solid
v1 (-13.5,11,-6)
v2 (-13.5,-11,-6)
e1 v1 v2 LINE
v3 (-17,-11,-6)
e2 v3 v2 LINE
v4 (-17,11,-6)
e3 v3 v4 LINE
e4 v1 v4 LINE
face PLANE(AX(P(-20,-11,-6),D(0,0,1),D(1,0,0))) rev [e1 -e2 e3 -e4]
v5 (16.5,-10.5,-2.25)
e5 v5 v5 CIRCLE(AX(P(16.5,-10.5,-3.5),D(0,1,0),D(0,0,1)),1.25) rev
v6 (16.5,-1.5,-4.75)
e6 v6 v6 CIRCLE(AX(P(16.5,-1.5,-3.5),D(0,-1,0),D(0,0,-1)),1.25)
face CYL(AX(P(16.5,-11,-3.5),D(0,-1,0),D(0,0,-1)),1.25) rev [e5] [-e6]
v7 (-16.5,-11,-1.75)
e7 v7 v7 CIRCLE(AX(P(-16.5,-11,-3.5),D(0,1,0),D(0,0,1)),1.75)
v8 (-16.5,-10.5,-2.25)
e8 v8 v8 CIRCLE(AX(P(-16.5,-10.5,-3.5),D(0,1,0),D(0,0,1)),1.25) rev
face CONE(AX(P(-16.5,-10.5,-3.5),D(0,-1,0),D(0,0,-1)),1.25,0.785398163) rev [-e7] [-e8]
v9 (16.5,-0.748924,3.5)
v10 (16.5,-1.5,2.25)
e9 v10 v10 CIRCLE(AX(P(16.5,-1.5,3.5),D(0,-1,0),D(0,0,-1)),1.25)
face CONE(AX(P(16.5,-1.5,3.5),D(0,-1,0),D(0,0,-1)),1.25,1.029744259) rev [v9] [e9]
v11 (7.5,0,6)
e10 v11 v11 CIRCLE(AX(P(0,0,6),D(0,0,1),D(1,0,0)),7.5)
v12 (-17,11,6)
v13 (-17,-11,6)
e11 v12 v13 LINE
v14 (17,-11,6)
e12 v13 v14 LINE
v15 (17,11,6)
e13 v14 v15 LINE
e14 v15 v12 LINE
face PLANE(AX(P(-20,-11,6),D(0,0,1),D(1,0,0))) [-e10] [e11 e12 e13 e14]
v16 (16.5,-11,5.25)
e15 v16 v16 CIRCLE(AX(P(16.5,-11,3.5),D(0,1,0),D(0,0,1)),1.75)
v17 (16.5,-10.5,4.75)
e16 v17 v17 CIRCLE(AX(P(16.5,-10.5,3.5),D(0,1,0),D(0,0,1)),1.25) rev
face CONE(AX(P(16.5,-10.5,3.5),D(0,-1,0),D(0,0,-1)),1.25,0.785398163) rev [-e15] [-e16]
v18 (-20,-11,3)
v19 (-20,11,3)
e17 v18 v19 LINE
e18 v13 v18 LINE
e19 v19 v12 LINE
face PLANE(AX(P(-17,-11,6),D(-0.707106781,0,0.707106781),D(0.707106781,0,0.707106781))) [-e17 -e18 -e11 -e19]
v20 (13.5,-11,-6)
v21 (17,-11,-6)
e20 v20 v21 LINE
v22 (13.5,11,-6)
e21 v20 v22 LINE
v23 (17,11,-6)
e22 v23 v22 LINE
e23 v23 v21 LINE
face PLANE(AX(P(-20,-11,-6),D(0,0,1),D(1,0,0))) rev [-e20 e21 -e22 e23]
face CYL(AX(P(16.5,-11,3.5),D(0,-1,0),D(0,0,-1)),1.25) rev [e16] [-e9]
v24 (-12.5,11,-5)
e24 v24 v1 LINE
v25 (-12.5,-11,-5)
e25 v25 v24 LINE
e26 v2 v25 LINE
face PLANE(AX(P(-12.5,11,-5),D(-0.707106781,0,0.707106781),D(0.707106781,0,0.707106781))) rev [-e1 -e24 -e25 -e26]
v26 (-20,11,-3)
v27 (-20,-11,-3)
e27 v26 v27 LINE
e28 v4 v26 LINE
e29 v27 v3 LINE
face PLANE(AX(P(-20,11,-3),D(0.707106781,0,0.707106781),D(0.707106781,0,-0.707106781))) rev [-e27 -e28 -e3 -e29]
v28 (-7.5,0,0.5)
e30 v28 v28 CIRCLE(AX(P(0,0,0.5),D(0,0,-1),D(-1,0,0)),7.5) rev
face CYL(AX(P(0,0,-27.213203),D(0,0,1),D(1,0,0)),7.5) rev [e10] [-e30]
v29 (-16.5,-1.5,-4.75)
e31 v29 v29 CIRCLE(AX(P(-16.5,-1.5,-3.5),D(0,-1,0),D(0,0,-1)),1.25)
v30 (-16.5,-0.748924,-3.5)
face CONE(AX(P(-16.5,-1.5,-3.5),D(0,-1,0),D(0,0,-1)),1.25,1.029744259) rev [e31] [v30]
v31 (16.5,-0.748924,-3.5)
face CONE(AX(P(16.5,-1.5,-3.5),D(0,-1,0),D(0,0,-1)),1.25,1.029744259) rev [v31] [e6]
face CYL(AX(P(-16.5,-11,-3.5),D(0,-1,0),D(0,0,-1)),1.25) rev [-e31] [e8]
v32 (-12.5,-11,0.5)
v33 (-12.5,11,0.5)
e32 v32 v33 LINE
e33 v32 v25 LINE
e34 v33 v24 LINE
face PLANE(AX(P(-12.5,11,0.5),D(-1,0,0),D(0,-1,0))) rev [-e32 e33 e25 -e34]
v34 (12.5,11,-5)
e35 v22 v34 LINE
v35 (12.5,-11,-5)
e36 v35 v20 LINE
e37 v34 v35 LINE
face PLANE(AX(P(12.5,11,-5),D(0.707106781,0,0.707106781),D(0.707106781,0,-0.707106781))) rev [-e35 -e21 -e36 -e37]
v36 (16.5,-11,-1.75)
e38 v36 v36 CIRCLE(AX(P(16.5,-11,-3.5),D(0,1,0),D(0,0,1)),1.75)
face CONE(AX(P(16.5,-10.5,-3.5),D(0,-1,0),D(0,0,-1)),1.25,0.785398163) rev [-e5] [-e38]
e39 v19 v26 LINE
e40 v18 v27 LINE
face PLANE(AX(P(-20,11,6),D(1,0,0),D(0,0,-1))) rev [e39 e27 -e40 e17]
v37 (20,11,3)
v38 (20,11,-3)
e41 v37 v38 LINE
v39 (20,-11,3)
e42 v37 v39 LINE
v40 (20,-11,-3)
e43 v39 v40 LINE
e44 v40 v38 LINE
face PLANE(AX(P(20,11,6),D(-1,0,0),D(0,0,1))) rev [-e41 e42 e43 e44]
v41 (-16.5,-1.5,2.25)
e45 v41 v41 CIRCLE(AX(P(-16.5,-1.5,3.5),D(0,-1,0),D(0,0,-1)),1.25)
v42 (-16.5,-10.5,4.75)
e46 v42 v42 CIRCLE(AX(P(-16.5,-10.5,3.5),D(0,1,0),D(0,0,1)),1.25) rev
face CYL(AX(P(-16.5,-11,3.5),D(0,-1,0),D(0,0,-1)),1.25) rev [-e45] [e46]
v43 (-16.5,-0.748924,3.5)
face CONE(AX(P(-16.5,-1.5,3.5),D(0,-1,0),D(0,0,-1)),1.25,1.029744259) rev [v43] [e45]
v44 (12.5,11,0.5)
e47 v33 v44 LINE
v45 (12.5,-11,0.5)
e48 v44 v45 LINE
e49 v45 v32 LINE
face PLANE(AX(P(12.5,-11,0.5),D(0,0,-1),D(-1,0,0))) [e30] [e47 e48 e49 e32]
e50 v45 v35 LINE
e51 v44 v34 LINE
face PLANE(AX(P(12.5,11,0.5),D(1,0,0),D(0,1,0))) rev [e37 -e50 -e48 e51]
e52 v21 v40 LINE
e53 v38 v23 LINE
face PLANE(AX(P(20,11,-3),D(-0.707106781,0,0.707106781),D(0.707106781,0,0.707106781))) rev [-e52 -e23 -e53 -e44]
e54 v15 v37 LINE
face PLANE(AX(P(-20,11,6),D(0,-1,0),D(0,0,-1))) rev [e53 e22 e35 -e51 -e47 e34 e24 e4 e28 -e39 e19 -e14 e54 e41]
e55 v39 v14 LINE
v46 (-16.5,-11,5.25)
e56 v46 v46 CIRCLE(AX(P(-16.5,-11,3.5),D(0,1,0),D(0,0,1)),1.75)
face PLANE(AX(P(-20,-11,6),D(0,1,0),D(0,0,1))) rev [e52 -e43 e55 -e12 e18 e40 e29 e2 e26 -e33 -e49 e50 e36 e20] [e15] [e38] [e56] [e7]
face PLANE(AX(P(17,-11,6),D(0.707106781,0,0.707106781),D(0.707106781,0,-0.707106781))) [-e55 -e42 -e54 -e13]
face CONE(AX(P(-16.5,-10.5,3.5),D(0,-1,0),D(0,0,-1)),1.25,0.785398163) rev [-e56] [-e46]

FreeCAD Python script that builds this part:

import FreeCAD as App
import Part
import Sketcher

V = App.Vector
Q = App.Units.Quantity


def edges_at(feature, points):
    """Names of the edges that pass closest to the given points."""
    edges = feature.Shape.Edges
    near = lambda p: min(range(len(edges)), key=lambda i: edges[i].distToShape(Part.Vertex(*p))[0])
    return sorted({f"Edge{near(p) + 1}" for p in points})

doc = App.newDocument("Part")
params = doc.addObject("Spreadsheet::Sheet", "Params")
for row, (alias, value) in enumerate([
    ("sketch1_width", "40 mm"),
    ("sketch1_height", "22 mm"),
    ("pad1_length", "12 mm"),
    ("sketch2_width", "9.5 mm"),
    ("sketch2_height", "1.25 mm"),
    ("groove_angle", "360 deg"),
    ("linearpattern_pitch", "33 mm"),
    ("chamfer_size", "0.5 mm"),
    ("sketch3_diameter", "15 mm"),
    ("pocket1_length", "12 mm"),
    ("sketch4_width", "9.5 mm"),
    ("sketch4_height", "1.25 mm"),
    ("groove2_angle", "360 deg"),
    ("chamfer2_size", "0.5 mm"),
    ("sketch5_width", "25 mm"),
    ("sketch5_height", "22 mm"),
    ("pocket2_length", "6.5 mm"),
    ("chamfer3_size", "1 mm"),
    ("chamfer4_size", "3 mm"),
], start=1):
    params.set(f"A{row}", alias)
    params.set(f"B{row}", "=" + value)
    params.setAlias(f"B{row}", alias)

body = doc.addObject("PartDesign::Body", "Body")

sketch1 = doc.addObject("Sketcher::SketchObject", "Sketch")
body.addObject(sketch1)
sketch1.AttachmentSupport = (doc.XY_Plane, [""])
sketch1.MapMode = "FlatFace"
sketch1.addGeometry([
    Part.LineSegment(V(-20, 11, 0), V(-20, -11, 0)),
    Part.LineSegment(V(-20, -11, 0), V(20, -11, 0)),
    Part.LineSegment(V(20, -11, 0), V(20, 11, 0)),
    Part.LineSegment(V(20, 11, 0), V(-20, 11, 0)),
], False)
sketch1.addConstraint([
    Sketcher.Constraint("Coincident", 0, 2, 1, 1),
    Sketcher.Constraint("Coincident", 1, 2, 2, 1),
    Sketcher.Constraint("Coincident", 2, 2, 3, 1),
    Sketcher.Constraint("Coincident", 3, 2, 0, 1),
    Sketcher.Constraint("Vertical", 0),
    Sketcher.Constraint("Horizontal", 1),
    Sketcher.Constraint("Vertical", 2),
    Sketcher.Constraint("Horizontal", 3),
    Sketcher.Constraint("Symmetric", 0, 2, 2, 2, -1, 1),
    Sketcher.Constraint("DistanceX", 1, 1, 1, 2, 40.0),
    Sketcher.Constraint("DistanceY", 0, 2, 0, 1, 22.0),
])
sketch1.setExpression("Constraints[9]", "Params.sketch1_width")
sketch1.setExpression("Constraints[10]", "Params.sketch1_height")
pad1 = doc.addObject("PartDesign::Pad", "Pad")
body.addObject(pad1)
pad1.Profile = sketch1
pad1.setExpression("Length", "Params.pad1_length")
pad1.Midplane = True

sketch2 = doc.addObject("Sketcher::SketchObject", "Sketch001")
body.addObject(sketch2)
sketch2.AttachmentSupport = (doc.YZ_Plane, [""])
sketch2.MapMode = "FlatFace"
sketch2.AttachmentOffset = App.Placement(V(0, 0, -16.5), App.Rotation())
sketch2.addGeometry([
    Part.LineSegment(V(-0.7, 3.5, 0), V(-11, 3.5, 0)),
    Part.LineSegment(V(-11, 3.5, 0), V(-11, 2.2, 0)),
    Part.LineSegment(V(-11, 2.2, 0), V(-1.5, 2.2, 0)),
    Part.LineSegment(V(-1.5, 2.2, 0), V(-0.7, 3.5, 0)),
], False)
sketch2.addGeometry(Part.LineSegment(V(-11, 3.5, 0), V(-0.7, 3.5, 0)), True)
sketch2.addConstraint([
    Sketcher.Constraint("Coincident", 0, 2, 1, 1),
    Sketcher.Constraint("Coincident", 1, 2, 2, 1),
    Sketcher.Constraint("Coincident", 2, 2, 3, 1),
    Sketcher.Constraint("Coincident", 3, 2, 0, 1),
    Sketcher.Constraint("Horizontal", 0),
    Sketcher.Constraint("Vertical", 1),
    Sketcher.Constraint("Horizontal", 2),
    Sketcher.Constraint("Horizontal", 4),
    Sketcher.Constraint("Coincident", 4, 1, 0, 2),
    Sketcher.Constraint("Equal", 0, 4),
    Sketcher.Constraint("Angle", 3, Q("59 deg")),
    Sketcher.Constraint("DistanceX", 2, 1, 2, 2, 9.5),
    Sketcher.Constraint("DistanceX", 0, 2, -1, 1, 11.0),
    Sketcher.Constraint("DistanceY", 1, 2, 1, 1, 1.25),
    Sketcher.Constraint("DistanceY", -1, 1, 0, 2, 3.5),
])
sketch2.setExpression("Constraints[11]", "Params.sketch2_width")
sketch2.setExpression("Constraints[13]", "Params.sketch2_height")
groove = doc.addObject("PartDesign::Groove", "Groove")
body.addObject(groove)
groove.Profile = sketch2
groove.ReferenceAxis = (sketch2, ["Axis0"])
groove.setExpression("Angle", "Params.groove_angle")
doc.recompute()

linearpattern = doc.addObject("PartDesign::LinearPattern", "LinearPattern")
body.addObject(linearpattern)
linearpattern.Originals = [groove]
linearpattern.Direction = (doc.X_Axis, [""])
linearpattern.Mode = "offset"
linearpattern.setExpression("Offset", "Params.linearpattern_pitch")
linearpattern.Occurrences = 2
body.Tip = linearpattern
doc.recompute()

chamfer = doc.addObject("PartDesign::Chamfer", "Chamfer")
body.addObject(chamfer)
chamfer.Base = (linearpattern, edges_at(linearpattern, [(16.5, -11, 4.75), (-16.5, -11, 4.75)]))
chamfer.setExpression("Size", "Params.chamfer_size")

sketch3 = doc.addObject("Sketcher::SketchObject", "Sketch002")
body.addObject(sketch3)
sketch3.AttachmentSupport = (doc.XY_Plane, [""])
sketch3.MapMode = "FlatFace"
sketch3.AttachmentOffset = App.Placement(V(0, 0, 6), App.Rotation())
sketch3.addGeometry(Part.Circle(V(0, 0, 0), V(0, 0, 1), 8), False)
sketch3.addConstraint([
    Sketcher.Constraint("Coincident", 0, 3, -1, 1),
    Sketcher.Constraint("Diameter", 0, 15.0),
])
sketch3.setExpression("Constraints[1]", "Params.sketch3_diameter")
pocket1 = doc.addObject("PartDesign::Pocket", "Pocket")
body.addObject(pocket1)
pocket1.Profile = sketch3
pocket1.setExpression("Length", "Params.pocket1_length")
doc.recompute()

mirrored = doc.addObject("PartDesign::Mirrored", "Mirrored")
body.addObject(mirrored)
mirrored.Originals = [groove]
mirrored.MirrorPlane = (doc.XY_Plane, [""])
body.Tip = mirrored

sketch4 = doc.addObject("Sketcher::SketchObject", "Sketch003")
body.addObject(sketch4)
sketch4.AttachmentSupport = (doc.YZ_Plane, [""])
sketch4.MapMode = "FlatFace"
sketch4.AttachmentOffset = App.Placement(V(0, 0, 16.5), App.Rotation())
sketch4.addGeometry([
    Part.LineSegment(V(-11, -3.5, 0), V(-0.7, -3.5, 0)),
    Part.LineSegment(V(-0.7, -3.5, 0), V(-1.5, -2.2, 0)),
    Part.LineSegment(V(-1.5, -2.2, 0), V(-11, -2.2, 0)),
    Part.LineSegment(V(-11, -2.2, 0), V(-11, -3.5, 0)),
], False)
sketch4.addGeometry(Part.LineSegment(V(-0.7, -3.5, 0), V(-11, -3.5, 0)), True)
sketch4.addConstraint([
    Sketcher.Constraint("Coincident", 0, 2, 1, 1),
    Sketcher.Constraint("Coincident", 1, 2, 2, 1),
    Sketcher.Constraint("Coincident", 2, 2, 3, 1),
    Sketcher.Constraint("Coincident", 3, 2, 0, 1),
    Sketcher.Constraint("Horizontal", 0),
    Sketcher.Constraint("Horizontal", 2),
    Sketcher.Constraint("Vertical", 3),
    Sketcher.Constraint("Horizontal", 4),
    Sketcher.Constraint("Coincident", 4, 1, 0, 2),
    Sketcher.Constraint("Vertical", 2, 2, 4, 2),
    Sketcher.Constraint("Angle", 1, Q("121 deg")),
    Sketcher.Constraint("DistanceX", 2, 2, 2, 1, 9.5),
    Sketcher.Constraint("DistanceX", 2, 2, -1, 1, 11.0),
    Sketcher.Constraint("DistanceY", 3, 2, 3, 1, 1.25),
    Sketcher.Constraint("DistanceY", 0, 2, -1, 1, 3.5),
])
sketch4.setExpression("Constraints[11]", "Params.sketch4_width")
sketch4.setExpression("Constraints[13]", "Params.sketch4_height")
groove2 = doc.addObject("PartDesign::Groove", "Groove001")
body.addObject(groove2)
groove2.Profile = sketch4
groove2.ReferenceAxis = (sketch4, ["Axis0"])
groove2.setExpression("Angle", "Params.groove2_angle")
doc.recompute()

chamfer2 = doc.addObject("PartDesign::Chamfer", "Chamfer001")
body.addObject(chamfer2)
chamfer2.Base = (groove2, edges_at(groove2, [(16.5, -11, -4.75), (-16.5, -11, -4.75)]))
chamfer2.setExpression("Size", "Params.chamfer2_size")

sketch5 = doc.addObject("Sketcher::SketchObject", "Sketch004")
body.addObject(sketch5)
sketch5.AttachmentSupport = (doc.XY_Plane, [""])
sketch5.MapMode = "FlatFace"
sketch5.AttachmentOffset = App.Placement(V(0, 0, -6), App.Rotation())
sketch5.addGeometry([
    Part.LineSegment(V(12, 11, 0), V(12, -11, 0)),
    Part.LineSegment(V(12, -11, 0), V(-12, -11, 0)),
    Part.LineSegment(V(-12, -11, 0), V(-12, 11, 0)),
    Part.LineSegment(V(-12, 11, 0), V(12, 11, 0)),
], False)
sketch5.addConstraint([
    Sketcher.Constraint("Coincident", 0, 2, 1, 1),
    Sketcher.Constraint("Coincident", 1, 2, 2, 1),
    Sketcher.Constraint("Coincident", 2, 2, 3, 1),
    Sketcher.Constraint("Coincident", 3, 2, 0, 1),
    Sketcher.Constraint("Vertical", 0),
    Sketcher.Constraint("Horizontal", 1),
    Sketcher.Constraint("Vertical", 2),
    Sketcher.Constraint("Horizontal", 3),
    Sketcher.Constraint("Symmetric", 0, 2, 2, 2, -1, 1),
    Sketcher.Constraint("DistanceX", 1, 2, 1, 1, 25.0),
    Sketcher.Constraint("DistanceY", 0, 2, 0, 1, 22.0),
])
sketch5.setExpression("Constraints[9]", "Params.sketch5_width")
sketch5.setExpression("Constraints[10]", "Params.sketch5_height")
pocket2 = doc.addObject("PartDesign::Pocket", "Pocket001")
body.addObject(pocket2)
pocket2.Profile = sketch5
pocket2.setExpression("Length", "Params.pocket2_length")
pocket2.Reversed = True
doc.recompute()

chamfer3 = doc.addObject("PartDesign::Chamfer", "Chamfer002")
body.addObject(chamfer3)
chamfer3.Base = (pocket2, edges_at(pocket2, [(12.5, 0, -6), (-12.5, 0, -6)]))
chamfer3.setExpression("Size", "Params.chamfer3_size")
doc.recompute()

chamfer4 = doc.addObject("PartDesign::Chamfer", "Chamfer003")
body.addObject(chamfer4)
chamfer4.Base = (chamfer3, edges_at(chamfer3, [
    (20, 0, 6),
    (-20, 0, 6),
    (20, 0, -6),
    (-20, 0, -6),
]))
chamfer4.setExpression("Size", "Params.chamfer4_size")

doc.recompute()
